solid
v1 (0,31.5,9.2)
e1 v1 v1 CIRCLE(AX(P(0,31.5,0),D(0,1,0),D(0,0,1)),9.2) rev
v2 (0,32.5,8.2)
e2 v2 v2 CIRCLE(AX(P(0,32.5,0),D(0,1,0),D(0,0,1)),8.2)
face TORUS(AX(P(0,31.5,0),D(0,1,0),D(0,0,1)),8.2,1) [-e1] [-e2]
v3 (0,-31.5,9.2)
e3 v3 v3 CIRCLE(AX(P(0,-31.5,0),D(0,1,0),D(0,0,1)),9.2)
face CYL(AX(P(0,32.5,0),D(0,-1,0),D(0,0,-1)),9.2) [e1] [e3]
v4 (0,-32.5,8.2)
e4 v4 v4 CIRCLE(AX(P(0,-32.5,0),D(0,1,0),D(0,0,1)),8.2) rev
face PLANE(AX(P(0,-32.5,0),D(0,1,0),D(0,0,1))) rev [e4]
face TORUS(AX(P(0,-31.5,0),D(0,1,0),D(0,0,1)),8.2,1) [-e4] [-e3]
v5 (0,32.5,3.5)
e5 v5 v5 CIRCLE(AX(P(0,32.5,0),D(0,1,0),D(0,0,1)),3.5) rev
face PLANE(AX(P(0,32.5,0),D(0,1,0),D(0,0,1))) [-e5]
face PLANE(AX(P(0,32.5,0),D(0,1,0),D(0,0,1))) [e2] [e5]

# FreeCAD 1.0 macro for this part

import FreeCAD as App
import Part
import Sketcher
from FreeCAD import Vector
Q = App.Units.Quantity


def edges_at(feature, points):
    """Names of the edges that pass closest to the given points."""
    edges = feature.Shape.Edges
    near = lambda p: min(range(len(edges)), key=lambda i: edges[i].distToShape(Part.Vertex(*p))[0])
    return sorted({f"Edge{near(p) + 1}" for p in points})

doc = App.newDocument("Part")
params = doc.addObject("Spreadsheet::Sheet", "Params")
for row, (alias, value) in enumerate([
    ("sketch1_diameter", "18.4 mm"),
    ("pad1_length", "65 mm"),
    ("fillet_radius", "1 mm"),
], start=1):
    params.set(f"A{row}", alias)
    params.set(f"B{row}", "=" + value)
    params.setAlias(f"B{row}", alias)

body = doc.addObject("PartDesign::Body", "Body")

# Sketch on XZ plane
sketch1 = body.newObject("Sketcher::SketchObject", "Sketch")
sketch1.AttachmentSupport = (doc.getObject("XZ_Plane"), [""])
sketch1.MapMode = "FlatFace"
sketch1.addGeometry(Part.Circle(Vector(0, 0, 0), Vector(0, 0, 1), 9), False)
sketch1.addConstraint(Sketcher.Constraint("Coincident", 0, 3, -1, 1))
sketch1.addConstraint(Sketcher.Constraint("Diameter", 0, Q("18.4 mm")))
sketch1.setExpression("Constraints[1]", "Params.sketch1_diameter")
pad1 = body.newObject("PartDesign::Pad", "Pad")
pad1.Profile = sketch1
pad1.setExpression("Length", "Params.pad1_length")
pad1.Midplane = True
doc.recompute()

fillet = body.newObject("PartDesign::Fillet", "Fillet")
fillet.Base = (pad1, edges_at(pad1, [(0, -32.5, -9.2), (0, 32.5, -9.2)]))
fillet.setExpression("Radius", "Params.fillet_radius")

doc.recompute()
